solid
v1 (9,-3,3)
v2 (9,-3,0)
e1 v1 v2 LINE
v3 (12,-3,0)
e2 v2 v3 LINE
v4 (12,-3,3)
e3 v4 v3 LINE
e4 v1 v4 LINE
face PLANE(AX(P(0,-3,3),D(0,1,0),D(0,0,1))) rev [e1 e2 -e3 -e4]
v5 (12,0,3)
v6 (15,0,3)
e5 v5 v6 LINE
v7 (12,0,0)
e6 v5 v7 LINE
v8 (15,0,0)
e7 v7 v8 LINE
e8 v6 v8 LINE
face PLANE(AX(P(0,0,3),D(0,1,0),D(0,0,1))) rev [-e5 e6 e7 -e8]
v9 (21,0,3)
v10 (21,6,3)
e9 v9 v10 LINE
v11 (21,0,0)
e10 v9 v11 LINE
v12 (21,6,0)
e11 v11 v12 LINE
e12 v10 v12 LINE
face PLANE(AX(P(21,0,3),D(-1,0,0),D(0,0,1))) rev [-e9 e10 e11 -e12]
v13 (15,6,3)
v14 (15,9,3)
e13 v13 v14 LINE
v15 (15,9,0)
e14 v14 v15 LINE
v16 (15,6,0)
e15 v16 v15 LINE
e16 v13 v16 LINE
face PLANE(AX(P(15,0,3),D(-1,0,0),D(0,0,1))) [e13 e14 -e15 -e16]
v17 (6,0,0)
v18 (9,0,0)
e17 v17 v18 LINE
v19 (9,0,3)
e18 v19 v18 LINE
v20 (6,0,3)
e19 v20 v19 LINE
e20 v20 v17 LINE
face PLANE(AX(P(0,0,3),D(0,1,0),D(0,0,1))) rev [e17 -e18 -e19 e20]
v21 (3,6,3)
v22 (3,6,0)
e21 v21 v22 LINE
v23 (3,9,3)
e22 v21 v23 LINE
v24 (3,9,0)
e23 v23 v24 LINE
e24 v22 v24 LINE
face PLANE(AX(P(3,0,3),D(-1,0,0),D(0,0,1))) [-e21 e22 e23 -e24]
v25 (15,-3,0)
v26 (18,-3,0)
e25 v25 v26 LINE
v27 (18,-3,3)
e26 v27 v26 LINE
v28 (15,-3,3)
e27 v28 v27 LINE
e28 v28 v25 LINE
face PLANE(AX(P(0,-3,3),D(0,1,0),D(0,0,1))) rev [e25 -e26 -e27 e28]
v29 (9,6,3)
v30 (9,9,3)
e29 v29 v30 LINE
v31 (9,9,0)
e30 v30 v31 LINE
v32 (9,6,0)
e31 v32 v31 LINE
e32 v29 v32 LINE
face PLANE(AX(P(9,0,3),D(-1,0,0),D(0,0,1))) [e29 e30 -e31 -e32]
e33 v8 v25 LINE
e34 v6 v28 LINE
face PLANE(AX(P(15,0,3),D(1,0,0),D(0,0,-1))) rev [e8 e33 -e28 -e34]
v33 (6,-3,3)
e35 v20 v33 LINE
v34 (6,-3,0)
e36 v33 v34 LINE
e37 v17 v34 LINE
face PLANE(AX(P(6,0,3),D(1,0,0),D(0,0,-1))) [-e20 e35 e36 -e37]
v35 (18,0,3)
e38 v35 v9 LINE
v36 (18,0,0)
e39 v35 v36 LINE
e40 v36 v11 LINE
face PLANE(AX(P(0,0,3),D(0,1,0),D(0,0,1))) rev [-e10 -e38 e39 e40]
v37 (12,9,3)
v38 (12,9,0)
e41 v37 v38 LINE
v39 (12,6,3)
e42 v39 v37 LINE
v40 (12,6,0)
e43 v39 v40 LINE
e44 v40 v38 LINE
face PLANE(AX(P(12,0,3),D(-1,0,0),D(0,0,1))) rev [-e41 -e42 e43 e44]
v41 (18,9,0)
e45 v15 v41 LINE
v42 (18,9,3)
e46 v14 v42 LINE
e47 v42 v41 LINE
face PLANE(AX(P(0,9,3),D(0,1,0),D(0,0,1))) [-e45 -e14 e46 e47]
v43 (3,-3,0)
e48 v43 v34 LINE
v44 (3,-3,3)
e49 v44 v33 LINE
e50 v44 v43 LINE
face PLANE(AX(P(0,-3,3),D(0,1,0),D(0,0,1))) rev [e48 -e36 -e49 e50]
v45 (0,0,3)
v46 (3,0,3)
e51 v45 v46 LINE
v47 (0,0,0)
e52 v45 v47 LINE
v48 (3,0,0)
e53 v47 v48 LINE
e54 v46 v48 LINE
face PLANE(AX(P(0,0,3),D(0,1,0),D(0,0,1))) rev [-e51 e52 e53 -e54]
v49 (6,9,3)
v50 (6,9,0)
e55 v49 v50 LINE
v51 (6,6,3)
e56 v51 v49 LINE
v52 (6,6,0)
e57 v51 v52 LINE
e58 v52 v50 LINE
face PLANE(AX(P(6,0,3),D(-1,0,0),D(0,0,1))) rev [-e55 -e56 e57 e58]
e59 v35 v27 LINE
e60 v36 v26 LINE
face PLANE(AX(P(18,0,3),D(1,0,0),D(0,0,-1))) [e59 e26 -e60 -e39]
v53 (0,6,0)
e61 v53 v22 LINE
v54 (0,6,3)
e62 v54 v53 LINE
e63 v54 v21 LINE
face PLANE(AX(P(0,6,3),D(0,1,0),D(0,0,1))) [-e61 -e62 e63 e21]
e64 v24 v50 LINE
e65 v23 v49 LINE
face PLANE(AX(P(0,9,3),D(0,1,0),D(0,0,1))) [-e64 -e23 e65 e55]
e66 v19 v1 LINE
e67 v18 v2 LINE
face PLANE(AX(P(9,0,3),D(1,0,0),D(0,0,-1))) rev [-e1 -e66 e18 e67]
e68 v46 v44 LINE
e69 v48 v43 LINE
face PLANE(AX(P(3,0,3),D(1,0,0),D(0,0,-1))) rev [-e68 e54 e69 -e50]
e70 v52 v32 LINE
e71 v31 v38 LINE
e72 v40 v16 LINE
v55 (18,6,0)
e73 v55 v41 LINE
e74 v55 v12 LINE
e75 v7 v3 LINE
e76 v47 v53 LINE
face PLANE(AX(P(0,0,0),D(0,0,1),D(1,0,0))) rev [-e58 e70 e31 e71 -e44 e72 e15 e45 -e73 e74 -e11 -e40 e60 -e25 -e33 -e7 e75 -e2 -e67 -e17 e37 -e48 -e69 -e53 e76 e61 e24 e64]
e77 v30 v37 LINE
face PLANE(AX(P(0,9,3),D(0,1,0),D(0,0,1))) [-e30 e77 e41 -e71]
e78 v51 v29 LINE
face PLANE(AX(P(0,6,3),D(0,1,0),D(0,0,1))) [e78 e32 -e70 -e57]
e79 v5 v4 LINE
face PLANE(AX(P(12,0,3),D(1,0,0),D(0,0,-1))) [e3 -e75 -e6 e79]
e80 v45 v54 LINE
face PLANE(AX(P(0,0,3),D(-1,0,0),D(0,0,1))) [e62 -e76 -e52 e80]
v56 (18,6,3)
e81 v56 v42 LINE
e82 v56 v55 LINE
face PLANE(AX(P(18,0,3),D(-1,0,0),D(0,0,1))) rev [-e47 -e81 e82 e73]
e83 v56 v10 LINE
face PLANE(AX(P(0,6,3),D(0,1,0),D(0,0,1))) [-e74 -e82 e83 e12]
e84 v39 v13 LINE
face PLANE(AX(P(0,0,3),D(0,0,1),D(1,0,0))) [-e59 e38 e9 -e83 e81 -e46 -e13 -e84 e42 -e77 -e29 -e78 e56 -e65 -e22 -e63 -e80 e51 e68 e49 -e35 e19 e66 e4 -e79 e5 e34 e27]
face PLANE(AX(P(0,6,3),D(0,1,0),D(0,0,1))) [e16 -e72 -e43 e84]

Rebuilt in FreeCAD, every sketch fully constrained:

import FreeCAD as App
import Part
import Sketcher
Q = App.Units.Quantity


def add_polygon(sketch, points):
    """Adds a closed chain of lines whose ends are joined by coincident constraints."""
    first, n = sketch.GeometryCount, len(points)
    for a, b in zip(points, points[1:] + points[:1]):
        sketch.addGeometry(Part.LineSegment(App.Vector(*a, 0), App.Vector(*b, 0)), False)
    for i in range(n):
        sketch.addConstraint(Sketcher.Constraint("Coincident", first + i, 2, first + (i + 1) % n, 1))

doc = App.newDocument("Part")
body = doc.addObject("PartDesign::Body", "Body")

# Sketch on XY plane
sketch1 = body.newObject("Sketcher::SketchObject", "Sketch")
sketch1.AttachmentSupport = (doc.getObject("XY_Plane"), [""])
sketch1.MapMode = "FlatFace"
add_polygon(sketch1, [(9, 9), (9, 6), (6, 6), (6, 9), (3, 9), (3, 6), (0, 6), (0, 0), (3, 0), (3, -3), (6, -3), (6, 0), (9, 0), (9, -3), (12, -3), (12, 0), (15, 0), (15, -3), (18, -3), (18, 0), (21, 0), (21, 6), (18, 6), (18, 9), (15, 9), (15, 6), (12, 6), (12, 9)])  # lines 0-27
sketch1.addConstraint(Sketcher.Constraint("Vertical", 0))
sketch1.addConstraint(Sketcher.Constraint("Horizontal", 1))
sketch1.addConstraint(Sketcher.Constraint("Vertical", 2))
sketch1.addConstraint(Sketcher.Constraint("Horizontal", 3))
sketch1.addConstraint(Sketcher.Constraint("Vertical", 4))
sketch1.addConstraint(Sketcher.Constraint("Horizontal", 5))
sketch1.addConstraint(Sketcher.Constraint("Vertical", 6))
sketch1.addConstraint(Sketcher.Constraint("Horizontal", 7))
sketch1.addConstraint(Sketcher.Constraint("Vertical", 8))
sketch1.addConstraint(Sketcher.Constraint("Horizontal", 9))
sketch1.addConstraint(Sketcher.Constraint("Vertical", 10))
sketch1.addConstraint(Sketcher.Constraint("Horizontal", 11))
sketch1.addConstraint(Sketcher.Constraint("Vertical", 12))
sketch1.addConstraint(Sketcher.Constraint("Horizontal", 13))
sketch1.addConstraint(Sketcher.Constraint("Vertical", 14))
sketch1.addConstraint(Sketcher.Constraint("Horizontal", 15))
sketch1.addConstraint(Sketcher.Constraint("Vertical", 16))
sketch1.addConstraint(Sketcher.Constraint("Horizontal", 17))
sketch1.addConstraint(Sketcher.Constraint("Vertical", 18))
sketch1.addConstraint(Sketcher.Constraint("Horizontal", 19))
sketch1.addConstraint(Sketcher.Constraint("Vertical", 20))
sketch1.addConstraint(Sketcher.Constraint("Horizontal", 21))
sketch1.addConstraint(Sketcher.Constraint("Vertical", 22))
sketch1.addConstraint(Sketcher.Constraint("Horizontal", 23))
sketch1.addConstraint(Sketcher.Constraint("Vertical", 24))
sketch1.addConstraint(Sketcher.Constraint("Horizontal", 25))
sketch1.addConstraint(Sketcher.Constraint("Vertical", 26))
sketch1.addConstraint(Sketcher.Constraint("Horizontal", 27))
sketch1.addConstraint(Sketcher.Constraint("Coincident", 6, 2, -1, 1))
sketch1.addConstraint(Sketcher.Constraint("PointOnObject", 10, 2, -1))
sketch1.addConstraint(Sketcher.Constraint("PointOnObject", 14, 2, -1))
sketch1.addConstraint(Sketcher.Constraint("PointOnObject", 18, 2, -1))
sketch1.addConstraint(Sketcher.Constraint("Horizontal", 1, 2, 4, 2))
sketch1.addConstraint(Sketcher.Constraint("Horizontal", 9, 2, 12, 2))
sketch1.addConstraint(Sketcher.Constraint("Horizontal", 13, 2, 16, 2))
sketch1.addConstraint(Sketcher.Constraint("Horizontal", 5, 2, 20, 2))
sketch1.addConstraint(Sketcher.Constraint("Horizontal", 3, 2, 22, 2))
sketch1.addConstraint(Sketcher.Constraint("Horizontal", 21, 2, 24, 2))
sketch1.addConstraint(Sketcher.Constraint("Horizontal", 23, 2, 26, 2))
sketch1.addConstraint(Sketcher.Constraint("Vertical", 4, 2, 7, 2))
sketch1.addConstraint(Sketcher.Constraint("Vertical", 2, 2, 9, 2))
sketch1.addConstraint(Sketcher.Constraint("Vertical", 0, 2, 11, 2))
sketch1.addConstraint(Sketcher.Constraint("Vertical", 18, 2, 21, 2))
sketch1.addConstraint(Sketcher.Constraint("Vertical", 16, 2, 23, 2))
sketch1.addConstraint(Sketcher.Constraint("Vertical", 14, 2, 25, 2))
sketch1.addConstraint(Sketcher.Constraint("Equal", 1, 3))
sketch1.addConstraint(Sketcher.Constraint("Equal", 3, 5))
sketch1.addConstraint(Sketcher.Constraint("Equal", 11, 13))
sketch1.addConstraint(Sketcher.Constraint("Equal", 13, 15))
sketch1.addConstraint(Sketcher.Constraint("Equal", 15, 17))
sketch1.addConstraint(Sketcher.Constraint("Equal", 17, 19))
sketch1.addConstraint(Sketcher.Constraint("Equal", 27, 0))
sketch1.addConstraint(Sketcher.Constraint("Equal", 4, 8))
sketch1.addConstraint(Sketcher.Constraint("DistanceX", 1, 2, 1, 1, Q("3 mm")))
sketch1.addConstraint(Sketcher.Constraint("DistanceY", 6, 2, 6, 1, Q("6 mm")))
pad1 = body.newObject("PartDesign::Pad", "Pad")
pad1.Profile = sketch1
pad1.Length = 3

doc.recompute()
